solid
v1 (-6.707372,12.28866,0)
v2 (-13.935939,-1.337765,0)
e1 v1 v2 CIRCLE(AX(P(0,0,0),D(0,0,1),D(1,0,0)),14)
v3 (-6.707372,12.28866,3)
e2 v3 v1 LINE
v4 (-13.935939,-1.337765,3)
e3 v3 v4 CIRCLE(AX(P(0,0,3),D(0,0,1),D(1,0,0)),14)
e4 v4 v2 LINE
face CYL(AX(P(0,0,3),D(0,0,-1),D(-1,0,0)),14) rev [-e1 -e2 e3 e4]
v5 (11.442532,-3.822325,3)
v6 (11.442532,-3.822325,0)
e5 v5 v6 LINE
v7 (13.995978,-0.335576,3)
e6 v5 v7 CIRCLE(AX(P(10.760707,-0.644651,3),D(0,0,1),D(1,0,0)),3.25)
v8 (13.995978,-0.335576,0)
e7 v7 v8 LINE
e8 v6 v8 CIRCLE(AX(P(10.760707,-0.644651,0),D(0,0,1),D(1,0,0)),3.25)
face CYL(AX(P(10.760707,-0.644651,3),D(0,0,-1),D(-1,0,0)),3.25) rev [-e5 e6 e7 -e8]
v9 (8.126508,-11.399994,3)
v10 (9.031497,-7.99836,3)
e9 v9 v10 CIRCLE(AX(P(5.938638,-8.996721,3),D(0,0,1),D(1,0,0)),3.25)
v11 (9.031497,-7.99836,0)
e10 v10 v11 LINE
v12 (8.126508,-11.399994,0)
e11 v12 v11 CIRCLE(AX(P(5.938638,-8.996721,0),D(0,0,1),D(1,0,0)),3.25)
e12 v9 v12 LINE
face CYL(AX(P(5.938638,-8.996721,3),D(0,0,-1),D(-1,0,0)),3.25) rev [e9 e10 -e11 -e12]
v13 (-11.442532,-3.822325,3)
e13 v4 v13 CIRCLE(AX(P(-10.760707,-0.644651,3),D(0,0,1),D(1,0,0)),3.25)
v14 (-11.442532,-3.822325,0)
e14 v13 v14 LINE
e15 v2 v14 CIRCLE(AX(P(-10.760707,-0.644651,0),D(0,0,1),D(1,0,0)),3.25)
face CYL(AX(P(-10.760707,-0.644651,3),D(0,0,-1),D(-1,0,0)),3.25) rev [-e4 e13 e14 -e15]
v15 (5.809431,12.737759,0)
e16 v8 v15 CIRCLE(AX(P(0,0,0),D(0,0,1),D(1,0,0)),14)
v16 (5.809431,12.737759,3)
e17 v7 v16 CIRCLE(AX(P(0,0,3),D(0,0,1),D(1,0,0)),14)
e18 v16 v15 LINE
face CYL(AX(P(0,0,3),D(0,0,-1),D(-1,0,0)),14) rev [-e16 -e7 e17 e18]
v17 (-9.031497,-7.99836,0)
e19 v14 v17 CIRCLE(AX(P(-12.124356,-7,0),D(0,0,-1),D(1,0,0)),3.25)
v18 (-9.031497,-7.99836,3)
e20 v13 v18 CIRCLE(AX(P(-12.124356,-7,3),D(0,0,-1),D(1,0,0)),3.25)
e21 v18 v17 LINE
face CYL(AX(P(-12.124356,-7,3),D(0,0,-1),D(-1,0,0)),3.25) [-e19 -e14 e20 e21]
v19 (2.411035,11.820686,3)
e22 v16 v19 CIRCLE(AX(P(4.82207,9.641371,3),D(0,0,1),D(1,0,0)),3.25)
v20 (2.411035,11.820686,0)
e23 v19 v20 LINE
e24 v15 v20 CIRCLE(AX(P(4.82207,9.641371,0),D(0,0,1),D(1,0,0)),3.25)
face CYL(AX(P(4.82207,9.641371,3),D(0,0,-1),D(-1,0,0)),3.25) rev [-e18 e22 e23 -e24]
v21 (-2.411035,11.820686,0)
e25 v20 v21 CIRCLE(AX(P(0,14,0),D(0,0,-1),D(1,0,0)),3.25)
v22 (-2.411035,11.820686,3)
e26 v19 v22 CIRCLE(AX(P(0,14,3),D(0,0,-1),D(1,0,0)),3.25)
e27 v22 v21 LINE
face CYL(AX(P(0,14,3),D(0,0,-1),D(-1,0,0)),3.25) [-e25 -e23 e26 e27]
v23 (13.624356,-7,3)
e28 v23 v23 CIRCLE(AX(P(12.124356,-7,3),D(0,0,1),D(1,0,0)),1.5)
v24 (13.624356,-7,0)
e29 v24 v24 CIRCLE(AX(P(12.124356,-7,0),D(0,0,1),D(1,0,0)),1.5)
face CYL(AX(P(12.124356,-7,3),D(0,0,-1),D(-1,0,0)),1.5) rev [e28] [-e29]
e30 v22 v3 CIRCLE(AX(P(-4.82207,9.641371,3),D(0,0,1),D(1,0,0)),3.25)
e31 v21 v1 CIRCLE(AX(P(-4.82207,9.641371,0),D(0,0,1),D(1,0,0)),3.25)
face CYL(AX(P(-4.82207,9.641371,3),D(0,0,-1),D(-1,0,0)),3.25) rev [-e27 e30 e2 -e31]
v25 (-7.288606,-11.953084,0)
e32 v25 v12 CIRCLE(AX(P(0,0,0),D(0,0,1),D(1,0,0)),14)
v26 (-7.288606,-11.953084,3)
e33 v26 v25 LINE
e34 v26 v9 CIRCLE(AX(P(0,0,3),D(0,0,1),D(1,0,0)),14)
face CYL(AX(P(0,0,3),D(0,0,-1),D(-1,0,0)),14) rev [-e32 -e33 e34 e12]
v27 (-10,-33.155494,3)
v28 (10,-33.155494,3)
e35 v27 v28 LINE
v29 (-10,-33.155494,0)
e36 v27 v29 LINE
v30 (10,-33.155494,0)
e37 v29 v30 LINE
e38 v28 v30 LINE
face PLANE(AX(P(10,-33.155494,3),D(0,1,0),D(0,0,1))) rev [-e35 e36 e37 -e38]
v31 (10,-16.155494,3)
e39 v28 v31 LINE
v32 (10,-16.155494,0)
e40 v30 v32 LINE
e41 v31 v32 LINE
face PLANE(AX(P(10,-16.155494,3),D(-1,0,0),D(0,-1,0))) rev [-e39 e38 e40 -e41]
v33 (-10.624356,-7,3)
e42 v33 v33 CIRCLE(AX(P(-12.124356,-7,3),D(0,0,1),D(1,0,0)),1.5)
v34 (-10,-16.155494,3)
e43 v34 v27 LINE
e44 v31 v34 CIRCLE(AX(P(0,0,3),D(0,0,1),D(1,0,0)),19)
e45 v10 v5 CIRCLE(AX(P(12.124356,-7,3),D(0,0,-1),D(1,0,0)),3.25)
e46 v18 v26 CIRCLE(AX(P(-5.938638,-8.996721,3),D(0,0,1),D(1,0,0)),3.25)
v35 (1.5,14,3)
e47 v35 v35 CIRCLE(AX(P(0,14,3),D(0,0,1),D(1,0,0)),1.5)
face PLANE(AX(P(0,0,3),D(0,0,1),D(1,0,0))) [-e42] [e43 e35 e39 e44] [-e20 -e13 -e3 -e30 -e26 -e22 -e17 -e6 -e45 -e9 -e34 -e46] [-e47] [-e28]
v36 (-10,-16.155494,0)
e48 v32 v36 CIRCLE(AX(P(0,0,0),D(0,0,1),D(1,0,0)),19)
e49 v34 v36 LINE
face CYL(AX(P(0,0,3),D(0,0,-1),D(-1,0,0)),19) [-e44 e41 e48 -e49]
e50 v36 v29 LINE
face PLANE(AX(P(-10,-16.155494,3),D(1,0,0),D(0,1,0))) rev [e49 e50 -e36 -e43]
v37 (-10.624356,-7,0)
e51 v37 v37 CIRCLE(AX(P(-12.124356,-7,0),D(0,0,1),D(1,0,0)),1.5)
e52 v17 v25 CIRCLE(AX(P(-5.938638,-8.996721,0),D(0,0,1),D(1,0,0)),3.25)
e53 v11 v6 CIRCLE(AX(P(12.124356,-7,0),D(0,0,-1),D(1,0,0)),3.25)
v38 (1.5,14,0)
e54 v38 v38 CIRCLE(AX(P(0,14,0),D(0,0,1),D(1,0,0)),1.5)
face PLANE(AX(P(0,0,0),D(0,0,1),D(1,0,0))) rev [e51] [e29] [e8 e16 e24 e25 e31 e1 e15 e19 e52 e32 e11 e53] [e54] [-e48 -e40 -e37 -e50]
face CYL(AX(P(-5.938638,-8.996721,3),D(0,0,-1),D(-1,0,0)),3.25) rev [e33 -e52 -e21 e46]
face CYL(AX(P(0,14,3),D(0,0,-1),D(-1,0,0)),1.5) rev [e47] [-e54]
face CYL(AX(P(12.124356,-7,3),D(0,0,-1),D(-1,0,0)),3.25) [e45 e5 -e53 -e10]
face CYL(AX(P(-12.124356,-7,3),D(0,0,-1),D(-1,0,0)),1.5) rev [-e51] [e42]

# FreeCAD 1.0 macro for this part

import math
import FreeCAD as App
import Part
import Sketcher

V = App.Vector
Q = App.Units.Quantity

doc = App.newDocument("Part")
body = doc.addObject("PartDesign::Body", "Body")

# Sketch on XY plane
sketch1 = doc.addObject("Sketcher::SketchObject", "Sketch")
body.addObject(sketch1)
sketch1.AttachmentSupport = (doc.XY_Plane, [""])
sketch1.MapMode = "FlatFace"
sketch1.addGeometry([
    Part.LineSegment(V(10, -33.2, 0), V(10, -16.2, 0)),  # 0
    Part.ArcOfCircle(Part.Circle(V(0, 0, 0), V(0, 0, 1), 19), math.radians(-58), math.radians(238)),  # 1
    Part.LineSegment(V(-10, -16.2, 0), V(-10, -33.2, 0)),  # 2
    Part.LineSegment(V(-10, -33.2, 0), V(10, -33.2, 0)),  # 3
    Part.Circle(V(12.1, -7, 0), V(0, 0, 1), 1.5),  # 4
    Part.Circle(V(-12.1, -7, 0), V(0, 0, 1), 1.5),  # 5
    Part.ArcOfCircle(Part.Circle(V(0, 14, 0), V(0, 0, 1), 3.3), math.radians(-138), math.radians(-42)),  # 6
    Part.ArcOfCircle(Part.Circle(V(4.8, 9.6, 0), V(0, 0, 1), 3.2), math.radians(72), math.radians(138)),  # 7
    Part.ArcOfCircle(Part.Circle(V(0, 0, 0), V(0, 0, 1), 14), math.radians(-1), math.radians(65)),  # 8
    Part.ArcOfCircle(Part.Circle(V(10.8, -0.6, 0), V(0, 0, 1), 3.2), math.radians(-78), math.radians(5)),  # 9
    Part.ArcOfCircle(Part.Circle(V(12.1, -7, 0), V(0, 0, 1), 3.3), math.radians(102), math.radians(198)),  # 10
    Part.ArcOfCircle(Part.Circle(V(5.9, -9, 0), V(0, 0, 1), 3.2), math.radians(-48), math.radians(18)),  # 11
    Part.ArcOfCircle(Part.Circle(V(0, 0, 0), V(0, 0, 1), 14), math.radians(-121), math.radians(-55)),  # 12
    Part.ArcOfCircle(Part.Circle(V(-5.9, -9, 0), V(0, 0, 1), 3.2), math.radians(162), math.radians(245)),  # 13
    Part.ArcOfCircle(Part.Circle(V(-12.1, -7, 0), V(0, 0, 1), 3.3), math.radians(-18), math.radians(78)),  # 14
    Part.ArcOfCircle(Part.Circle(V(-10.8, -0.6, 0), V(0, 0, 1), 3.2), math.radians(-168), math.radians(-102)),  # 15
    Part.ArcOfCircle(Part.Circle(V(0, 0, 0), V(0, 0, 1), 14), math.radians(119), math.radians(185)),  # 16
    Part.ArcOfCircle(Part.Circle(V(-4.8, 9.6, 0), V(0, 0, 1), 3.2), math.radians(42), math.radians(125)),  # 17
    Part.Circle(V(0, 14, 0), V(0, 0, 1), 1.5),  # 18
], False)
sketch1.addConstraint([
    Sketcher.Constraint("Coincident", 0, 2, 1, 1),
    Sketcher.Constraint("Coincident", 1, 2, 2, 1),
    Sketcher.Constraint("Coincident", 2, 2, 3, 1),
    Sketcher.Constraint("Coincident", 3, 2, 0, 1),
    Sketcher.Constraint("Tangent", 6, 2, 7, 2),
    Sketcher.Constraint("Coincident", 7, 1, 8, 2),
    Sketcher.Constraint("Coincident", 8, 1, 9, 2),
    Sketcher.Constraint("Tangent", 9, 1, 10, 1),
    Sketcher.Constraint("Tangent", 10, 2, 11, 2),
    Sketcher.Constraint("Coincident", 11, 1, 12, 2),
    Sketcher.Constraint("Coincident", 12, 1, 13, 2),
    Sketcher.Constraint("Tangent", 13, 1, 14, 1),
    Sketcher.Constraint("Tangent", 14, 2, 15, 2),
    Sketcher.Constraint("Coincident", 15, 1, 16, 2),
    Sketcher.Constraint("Coincident", 16, 1, 17, 2),
    Sketcher.Constraint("Tangent", 17, 1, 6, 1),
    Sketcher.Constraint("Vertical", 0),
    Sketcher.Constraint("Vertical", 2),
    Sketcher.Constraint("Horizontal", 3),
    Sketcher.Constraint("Coincident", 1, 3, -1, 1),
    Sketcher.Constraint("Coincident", 8, 3, -1, 1),
    Sketcher.Constraint("Coincident", 12, 3, -1, 1),
    Sketcher.Constraint("Coincident", 16, 3, -1, 1),
    Sketcher.Constraint("Coincident", 10, 3, 4, 3),
    Sketcher.Constraint("Coincident", 14, 3, 5, 3),
    Sketcher.Constraint("Coincident", 18, 3, 6, 3),
    Sketcher.Constraint("Equal", 4, 5),
    Sketcher.Constraint("Equal", 6, 7),
    Sketcher.Constraint("Equal", 7, 9),
    Sketcher.Constraint("Equal", 9, 10),
    Sketcher.Constraint("Equal", 10, 11),
    Sketcher.Constraint("Equal", 8, 12),
    Sketcher.Constraint("Equal", 11, 13),
    Sketcher.Constraint("Equal", 13, 14),
    Sketcher.Constraint("Equal", 14, 15),
    Sketcher.Constraint("Equal", 12, 16),
    Sketcher.Constraint("Equal", 15, 17),
    Sketcher.Constraint("Equal", 5, 18),
    Sketcher.Constraint("Symmetric", 4, 3, 5, 3, -2),
    Sketcher.Constraint("Symmetric", 7, 3, 17, 3, -2),
    Sketcher.Constraint("Horizontal", 11, 3, 13, 3),
    Sketcher.Constraint("Horizontal", 9, 3, 15, 3),
    Sketcher.Constraint("Horizontal", 0, 2, 1, 2),
    Sketcher.Constraint("Diameter", 4, Q("3 mm")),
    Sketcher.Constraint("Radius", 1, Q("19 mm")),
    Sketcher.Constraint("Radius", 8, Q("14 mm")),
    Sketcher.Constraint("DistanceX", 3, 1, 3, 2, Q("20 mm")),
    Sketcher.Constraint("DistanceY", 0, 1, 0, 2, Q("17 mm")),
    Sketcher.Constraint("Radius", 6, Q("3.25 mm")),
    Sketcher.Constraint("DistanceY", 4, 3, -1, 1, Q("7 mm")),
    Sketcher.Constraint("DistanceY", -1, 1, 6, 3, Q("14 mm")),
    Sketcher.Constraint("DistanceX", 17, 3, 7, 1, Q("10.631501 mm")),
    Sketcher.Constraint("DistanceY", 0, 2, 11, 1, Q("4.7555 mm")),
    Sketcher.Constraint("DistanceX", 15, 3, 12, 1, Q("3.472101 mm")),
    Sketcher.Constraint("DistanceY", 9, 3, -1, 1, Q("0.644651 mm")),
])
pad1 = doc.addObject("PartDesign::Pad", "Pad")
body.addObject(pad1)
pad1.Profile = sketch1
pad1.Length = 3

doc.recompute()
